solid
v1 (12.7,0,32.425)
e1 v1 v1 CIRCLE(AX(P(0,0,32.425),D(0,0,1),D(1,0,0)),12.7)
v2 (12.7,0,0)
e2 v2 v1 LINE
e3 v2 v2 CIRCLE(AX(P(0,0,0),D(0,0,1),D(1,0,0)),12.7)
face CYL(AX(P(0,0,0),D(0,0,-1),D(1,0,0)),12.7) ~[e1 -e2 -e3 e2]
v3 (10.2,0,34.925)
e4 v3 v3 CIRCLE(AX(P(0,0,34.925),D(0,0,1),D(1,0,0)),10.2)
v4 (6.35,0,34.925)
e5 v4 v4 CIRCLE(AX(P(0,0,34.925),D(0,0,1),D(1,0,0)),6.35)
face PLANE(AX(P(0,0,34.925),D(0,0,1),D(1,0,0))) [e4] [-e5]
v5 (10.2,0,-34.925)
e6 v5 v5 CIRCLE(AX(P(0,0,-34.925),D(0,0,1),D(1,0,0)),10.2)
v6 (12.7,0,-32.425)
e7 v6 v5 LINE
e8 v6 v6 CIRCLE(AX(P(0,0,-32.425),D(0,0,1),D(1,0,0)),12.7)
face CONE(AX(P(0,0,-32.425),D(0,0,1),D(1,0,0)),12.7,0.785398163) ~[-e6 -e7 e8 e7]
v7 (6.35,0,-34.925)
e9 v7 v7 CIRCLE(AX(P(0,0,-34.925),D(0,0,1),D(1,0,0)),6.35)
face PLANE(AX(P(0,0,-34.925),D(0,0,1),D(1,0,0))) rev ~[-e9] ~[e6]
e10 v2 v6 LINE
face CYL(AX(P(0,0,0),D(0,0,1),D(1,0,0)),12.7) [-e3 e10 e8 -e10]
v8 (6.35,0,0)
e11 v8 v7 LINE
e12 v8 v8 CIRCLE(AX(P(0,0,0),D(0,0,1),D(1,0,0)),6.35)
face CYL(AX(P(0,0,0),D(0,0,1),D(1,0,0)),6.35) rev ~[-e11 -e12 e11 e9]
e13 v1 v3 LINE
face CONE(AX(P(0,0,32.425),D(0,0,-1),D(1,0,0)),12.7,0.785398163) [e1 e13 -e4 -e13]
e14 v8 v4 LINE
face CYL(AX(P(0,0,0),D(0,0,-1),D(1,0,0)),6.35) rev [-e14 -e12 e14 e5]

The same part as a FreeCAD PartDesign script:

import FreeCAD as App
import Part
import Sketcher
from FreeCAD import Vector
Q = App.Units.Quantity


def edges_at(feature, points):
    """Names of the edges that pass closest to the given points."""
    edges = feature.Shape.Edges
    near = lambda p: min(range(len(edges)), key=lambda i: edges[i].distToShape(Part.Vertex(*p))[0])
    return sorted({f"Edge{near(p) + 1}" for p in points})

doc = App.newDocument("Part")
params = doc.addObject("Spreadsheet::Sheet", "Params")
for row, (alias, value) in enumerate([
    ("sketch1_diameter", "1 in"),
    ("sketch1_diameter2", "0.5 in"),
    ("pad1_length", "2.75 in"),
    ("chamfer_size", "2.5 mm"),
    ("chamfer2_size", "2.5 mm"),
], start=1):
    params.set(f"A{row}", alias)
    params.set(f"B{row}", "=" + value)
    params.setAlias(f"B{row}", alias)

body = doc.addObject("PartDesign::Body", "Body")

sketch1 = doc.addObject("Sketcher::SketchObject", "Sketch")
body.addObject(sketch1)
sketch1.AttachmentSupport = (doc.XY_Plane, [""])
sketch1.MapMode = "FlatFace"
sketch1.addGeometry([
    Part.Circle(Vector(0, 0, 0), Vector(0, 0, 1), 13),
    Part.Circle(Vector(0, 0, 0), Vector(0, 0, 1), 6),
], False)
sketch1.addConstraint([
    Sketcher.Constraint("Coincident", 0, 3, -1, 1),
    Sketcher.Constraint("Coincident", 1, 3, -1, 1),
    Sketcher.Constraint("Diameter", 0, Q("1 in")),
    Sketcher.Constraint("Diameter", 1, Q("0.5 in")),
])
sketch1.setExpression("Constraints[2]", "Params.sketch1_diameter")
sketch1.setExpression("Constraints[3]", "Params.sketch1_diameter2")
pad1 = doc.addObject("PartDesign::Pad", "Pad")
body.addObject(pad1)
pad1.Profile = sketch1
pad1.setExpression("Length", "Params.pad1_length")
pad1.Midplane = True
doc.recompute()

chamfer = doc.addObject("PartDesign::Chamfer", "Chamfer")
body.addObject(chamfer)
chamfer.Base = (pad1, edges_at(pad1, [(-12.7, 0, -34.925)]))
chamfer.setExpression("Size", "Params.chamfer_size")
doc.recompute()

chamfer2 = doc.addObject("PartDesign::Chamfer", "Chamfer001")
body.addObject(chamfer2)
chamfer2.Base = (chamfer, edges_at(chamfer, [(-12.7, 0, 34.925)]))
chamfer2.setExpression("Size", "Params.chamfer2_size")

doc.recompute()
